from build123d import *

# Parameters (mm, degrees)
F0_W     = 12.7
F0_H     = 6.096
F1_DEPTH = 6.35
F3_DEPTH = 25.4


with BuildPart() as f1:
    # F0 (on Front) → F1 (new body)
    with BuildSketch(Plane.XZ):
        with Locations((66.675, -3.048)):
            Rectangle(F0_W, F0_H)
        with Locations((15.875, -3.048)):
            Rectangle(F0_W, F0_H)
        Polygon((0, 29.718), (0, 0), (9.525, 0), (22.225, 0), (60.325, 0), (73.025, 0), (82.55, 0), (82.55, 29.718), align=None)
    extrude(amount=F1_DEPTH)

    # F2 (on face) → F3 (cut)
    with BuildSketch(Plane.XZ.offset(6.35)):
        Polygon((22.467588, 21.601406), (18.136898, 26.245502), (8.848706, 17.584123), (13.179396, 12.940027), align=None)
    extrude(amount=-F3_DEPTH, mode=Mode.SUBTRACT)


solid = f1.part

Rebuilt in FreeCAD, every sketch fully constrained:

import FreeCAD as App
import Part
import Sketcher
Q = App.Units.Quantity


def add_polygon(sketch, points):
    """Adds a closed chain of lines whose ends are joined by coincident constraints."""
    first, n = sketch.GeometryCount, len(points)
    for a, b in zip(points, points[1:] + points[:1]):
        sketch.addGeometry(Part.LineSegment(App.Vector(*a, 0), App.Vector(*b, 0)), False)
    for i in range(n):
        sketch.addConstraint(Sketcher.Constraint("Coincident", first + i, 2, first + (i + 1) % n, 1))

doc = App.newDocument("Part")
body = doc.addObject("PartDesign::Body", "Body")

# Sketch on XZ plane
sketch1 = body.newObject("Sketcher::SketchObject", "Sketch")
sketch1.AttachmentSupport = (doc.getObject("XZ_Plane"), [""])
sketch1.MapMode = "FlatFace"
add_polygon(sketch1, [(60, 0), (60, -6), (73, -6), (73, 0), (83, 0), (83, 30), (0, 30), (0, 0), (10, 0), (10, -6), (22, -6), (22, 0)])  # lines 0-11
sketch1.addConstraint(Sketcher.Constraint("Vertical", 0))
sketch1.addConstraint(Sketcher.Constraint("Horizontal", 1))
sketch1.addConstraint(Sketcher.Constraint("Vertical", 2))
sketch1.addConstraint(Sketcher.Constraint("Horizontal", 3))
sketch1.addConstraint(Sketcher.Constraint("Vertical", 4))
sketch1.addConstraint(Sketcher.Constraint("Horizontal", 5))
sketch1.addConstraint(Sketcher.Constraint("Vertical", 6))
sketch1.addConstraint(Sketcher.Constraint("Horizontal", 7))
sketch1.addConstraint(Sketcher.Constraint("Vertical", 8))
sketch1.addConstraint(Sketcher.Constraint("Horizontal", 9))
sketch1.addConstraint(Sketcher.Constraint("Vertical", 10))
sketch1.addConstraint(Sketcher.Constraint("Horizontal", 11))
sketch1.addConstraint(Sketcher.Constraint("Coincident", 6, 2, -1, 1))
sketch1.addConstraint(Sketcher.Constraint("PointOnObject", 2, 2, -1))
sketch1.addConstraint(Sketcher.Constraint("PointOnObject", 10, 2, -1))
sketch1.addConstraint(Sketcher.Constraint("Horizontal", 1, 2, 8, 2))
sketch1.addConstraint(Sketcher.Constraint("Equal", 3, 7))
sketch1.addConstraint(Sketcher.Constraint("Equal", 1, 9))
sketch1.addConstraint(Sketcher.Constraint("DistanceX", 1, 1, 1, 2, Q("0.5 in")))
sketch1.addConstraint(Sketcher.Constraint("DistanceX", 11, 1, 11, 2, Q("1.5 in")))
sketch1.addConstraint(Sketcher.Constraint("DistanceX", 5, 2, 5, 1, Q("3.25 in")))
sketch1.addConstraint(Sketcher.Constraint("DistanceY", 0, 2, 0, 1, Q("0.24 in")))
sketch1.addConstraint(Sketcher.Constraint("DistanceY", 4, 1, 4, 2, Q("1.17 in")))
pad1 = body.newObject("PartDesign::Pad", "Pad")
pad1.Profile = sketch1
pad1.Length = Q("0.25 in")

# Sketch on XZ plane
sketch2 = body.newObject("Sketcher::SketchObject", "Sketch001")
sketch2.AttachmentSupport = (doc.getObject("XZ_Plane"), [""])
sketch2.MapMode = "FlatFace"
sketch2.AttachmentOffset = App.Placement(App.Vector(0, 0, 0.25 * 25.4), App.Rotation())
add_polygon(sketch2, [(22, 22), (18, 26), (9, 18), (13, 13)])  # lines 0-3
sketch2.addConstraint(Sketcher.Constraint("Perpendicular", 0, 1))
sketch2.addConstraint(Sketcher.Constraint("Perpendicular", 1, 2))
sketch2.addConstraint(Sketcher.Constraint("Perpendicular", 2, 3))
sketch2.addConstraint(Sketcher.Constraint("Angle", 0, Q("133.000003 deg")))
sketch2.addConstraint(Sketcher.Constraint("Distance", 1, Q("0.5 in")))
sketch2.addConstraint(Sketcher.Constraint("Distance", 0, Q("0.25 in")))
sketch2.addConstraint(Sketcher.Constraint("DistanceY", -1, 1, 0, 2, 26.245502))
sketch2.addConstraint(Sketcher.Constraint("DistanceX", -1, 1, 0, 2, 18.136898))
pocket1 = body.newObject("PartDesign::Pocket", "Pocket")
pocket1.Profile = sketch2
pocket1.Length = Q("1 in")

doc.recompute()
